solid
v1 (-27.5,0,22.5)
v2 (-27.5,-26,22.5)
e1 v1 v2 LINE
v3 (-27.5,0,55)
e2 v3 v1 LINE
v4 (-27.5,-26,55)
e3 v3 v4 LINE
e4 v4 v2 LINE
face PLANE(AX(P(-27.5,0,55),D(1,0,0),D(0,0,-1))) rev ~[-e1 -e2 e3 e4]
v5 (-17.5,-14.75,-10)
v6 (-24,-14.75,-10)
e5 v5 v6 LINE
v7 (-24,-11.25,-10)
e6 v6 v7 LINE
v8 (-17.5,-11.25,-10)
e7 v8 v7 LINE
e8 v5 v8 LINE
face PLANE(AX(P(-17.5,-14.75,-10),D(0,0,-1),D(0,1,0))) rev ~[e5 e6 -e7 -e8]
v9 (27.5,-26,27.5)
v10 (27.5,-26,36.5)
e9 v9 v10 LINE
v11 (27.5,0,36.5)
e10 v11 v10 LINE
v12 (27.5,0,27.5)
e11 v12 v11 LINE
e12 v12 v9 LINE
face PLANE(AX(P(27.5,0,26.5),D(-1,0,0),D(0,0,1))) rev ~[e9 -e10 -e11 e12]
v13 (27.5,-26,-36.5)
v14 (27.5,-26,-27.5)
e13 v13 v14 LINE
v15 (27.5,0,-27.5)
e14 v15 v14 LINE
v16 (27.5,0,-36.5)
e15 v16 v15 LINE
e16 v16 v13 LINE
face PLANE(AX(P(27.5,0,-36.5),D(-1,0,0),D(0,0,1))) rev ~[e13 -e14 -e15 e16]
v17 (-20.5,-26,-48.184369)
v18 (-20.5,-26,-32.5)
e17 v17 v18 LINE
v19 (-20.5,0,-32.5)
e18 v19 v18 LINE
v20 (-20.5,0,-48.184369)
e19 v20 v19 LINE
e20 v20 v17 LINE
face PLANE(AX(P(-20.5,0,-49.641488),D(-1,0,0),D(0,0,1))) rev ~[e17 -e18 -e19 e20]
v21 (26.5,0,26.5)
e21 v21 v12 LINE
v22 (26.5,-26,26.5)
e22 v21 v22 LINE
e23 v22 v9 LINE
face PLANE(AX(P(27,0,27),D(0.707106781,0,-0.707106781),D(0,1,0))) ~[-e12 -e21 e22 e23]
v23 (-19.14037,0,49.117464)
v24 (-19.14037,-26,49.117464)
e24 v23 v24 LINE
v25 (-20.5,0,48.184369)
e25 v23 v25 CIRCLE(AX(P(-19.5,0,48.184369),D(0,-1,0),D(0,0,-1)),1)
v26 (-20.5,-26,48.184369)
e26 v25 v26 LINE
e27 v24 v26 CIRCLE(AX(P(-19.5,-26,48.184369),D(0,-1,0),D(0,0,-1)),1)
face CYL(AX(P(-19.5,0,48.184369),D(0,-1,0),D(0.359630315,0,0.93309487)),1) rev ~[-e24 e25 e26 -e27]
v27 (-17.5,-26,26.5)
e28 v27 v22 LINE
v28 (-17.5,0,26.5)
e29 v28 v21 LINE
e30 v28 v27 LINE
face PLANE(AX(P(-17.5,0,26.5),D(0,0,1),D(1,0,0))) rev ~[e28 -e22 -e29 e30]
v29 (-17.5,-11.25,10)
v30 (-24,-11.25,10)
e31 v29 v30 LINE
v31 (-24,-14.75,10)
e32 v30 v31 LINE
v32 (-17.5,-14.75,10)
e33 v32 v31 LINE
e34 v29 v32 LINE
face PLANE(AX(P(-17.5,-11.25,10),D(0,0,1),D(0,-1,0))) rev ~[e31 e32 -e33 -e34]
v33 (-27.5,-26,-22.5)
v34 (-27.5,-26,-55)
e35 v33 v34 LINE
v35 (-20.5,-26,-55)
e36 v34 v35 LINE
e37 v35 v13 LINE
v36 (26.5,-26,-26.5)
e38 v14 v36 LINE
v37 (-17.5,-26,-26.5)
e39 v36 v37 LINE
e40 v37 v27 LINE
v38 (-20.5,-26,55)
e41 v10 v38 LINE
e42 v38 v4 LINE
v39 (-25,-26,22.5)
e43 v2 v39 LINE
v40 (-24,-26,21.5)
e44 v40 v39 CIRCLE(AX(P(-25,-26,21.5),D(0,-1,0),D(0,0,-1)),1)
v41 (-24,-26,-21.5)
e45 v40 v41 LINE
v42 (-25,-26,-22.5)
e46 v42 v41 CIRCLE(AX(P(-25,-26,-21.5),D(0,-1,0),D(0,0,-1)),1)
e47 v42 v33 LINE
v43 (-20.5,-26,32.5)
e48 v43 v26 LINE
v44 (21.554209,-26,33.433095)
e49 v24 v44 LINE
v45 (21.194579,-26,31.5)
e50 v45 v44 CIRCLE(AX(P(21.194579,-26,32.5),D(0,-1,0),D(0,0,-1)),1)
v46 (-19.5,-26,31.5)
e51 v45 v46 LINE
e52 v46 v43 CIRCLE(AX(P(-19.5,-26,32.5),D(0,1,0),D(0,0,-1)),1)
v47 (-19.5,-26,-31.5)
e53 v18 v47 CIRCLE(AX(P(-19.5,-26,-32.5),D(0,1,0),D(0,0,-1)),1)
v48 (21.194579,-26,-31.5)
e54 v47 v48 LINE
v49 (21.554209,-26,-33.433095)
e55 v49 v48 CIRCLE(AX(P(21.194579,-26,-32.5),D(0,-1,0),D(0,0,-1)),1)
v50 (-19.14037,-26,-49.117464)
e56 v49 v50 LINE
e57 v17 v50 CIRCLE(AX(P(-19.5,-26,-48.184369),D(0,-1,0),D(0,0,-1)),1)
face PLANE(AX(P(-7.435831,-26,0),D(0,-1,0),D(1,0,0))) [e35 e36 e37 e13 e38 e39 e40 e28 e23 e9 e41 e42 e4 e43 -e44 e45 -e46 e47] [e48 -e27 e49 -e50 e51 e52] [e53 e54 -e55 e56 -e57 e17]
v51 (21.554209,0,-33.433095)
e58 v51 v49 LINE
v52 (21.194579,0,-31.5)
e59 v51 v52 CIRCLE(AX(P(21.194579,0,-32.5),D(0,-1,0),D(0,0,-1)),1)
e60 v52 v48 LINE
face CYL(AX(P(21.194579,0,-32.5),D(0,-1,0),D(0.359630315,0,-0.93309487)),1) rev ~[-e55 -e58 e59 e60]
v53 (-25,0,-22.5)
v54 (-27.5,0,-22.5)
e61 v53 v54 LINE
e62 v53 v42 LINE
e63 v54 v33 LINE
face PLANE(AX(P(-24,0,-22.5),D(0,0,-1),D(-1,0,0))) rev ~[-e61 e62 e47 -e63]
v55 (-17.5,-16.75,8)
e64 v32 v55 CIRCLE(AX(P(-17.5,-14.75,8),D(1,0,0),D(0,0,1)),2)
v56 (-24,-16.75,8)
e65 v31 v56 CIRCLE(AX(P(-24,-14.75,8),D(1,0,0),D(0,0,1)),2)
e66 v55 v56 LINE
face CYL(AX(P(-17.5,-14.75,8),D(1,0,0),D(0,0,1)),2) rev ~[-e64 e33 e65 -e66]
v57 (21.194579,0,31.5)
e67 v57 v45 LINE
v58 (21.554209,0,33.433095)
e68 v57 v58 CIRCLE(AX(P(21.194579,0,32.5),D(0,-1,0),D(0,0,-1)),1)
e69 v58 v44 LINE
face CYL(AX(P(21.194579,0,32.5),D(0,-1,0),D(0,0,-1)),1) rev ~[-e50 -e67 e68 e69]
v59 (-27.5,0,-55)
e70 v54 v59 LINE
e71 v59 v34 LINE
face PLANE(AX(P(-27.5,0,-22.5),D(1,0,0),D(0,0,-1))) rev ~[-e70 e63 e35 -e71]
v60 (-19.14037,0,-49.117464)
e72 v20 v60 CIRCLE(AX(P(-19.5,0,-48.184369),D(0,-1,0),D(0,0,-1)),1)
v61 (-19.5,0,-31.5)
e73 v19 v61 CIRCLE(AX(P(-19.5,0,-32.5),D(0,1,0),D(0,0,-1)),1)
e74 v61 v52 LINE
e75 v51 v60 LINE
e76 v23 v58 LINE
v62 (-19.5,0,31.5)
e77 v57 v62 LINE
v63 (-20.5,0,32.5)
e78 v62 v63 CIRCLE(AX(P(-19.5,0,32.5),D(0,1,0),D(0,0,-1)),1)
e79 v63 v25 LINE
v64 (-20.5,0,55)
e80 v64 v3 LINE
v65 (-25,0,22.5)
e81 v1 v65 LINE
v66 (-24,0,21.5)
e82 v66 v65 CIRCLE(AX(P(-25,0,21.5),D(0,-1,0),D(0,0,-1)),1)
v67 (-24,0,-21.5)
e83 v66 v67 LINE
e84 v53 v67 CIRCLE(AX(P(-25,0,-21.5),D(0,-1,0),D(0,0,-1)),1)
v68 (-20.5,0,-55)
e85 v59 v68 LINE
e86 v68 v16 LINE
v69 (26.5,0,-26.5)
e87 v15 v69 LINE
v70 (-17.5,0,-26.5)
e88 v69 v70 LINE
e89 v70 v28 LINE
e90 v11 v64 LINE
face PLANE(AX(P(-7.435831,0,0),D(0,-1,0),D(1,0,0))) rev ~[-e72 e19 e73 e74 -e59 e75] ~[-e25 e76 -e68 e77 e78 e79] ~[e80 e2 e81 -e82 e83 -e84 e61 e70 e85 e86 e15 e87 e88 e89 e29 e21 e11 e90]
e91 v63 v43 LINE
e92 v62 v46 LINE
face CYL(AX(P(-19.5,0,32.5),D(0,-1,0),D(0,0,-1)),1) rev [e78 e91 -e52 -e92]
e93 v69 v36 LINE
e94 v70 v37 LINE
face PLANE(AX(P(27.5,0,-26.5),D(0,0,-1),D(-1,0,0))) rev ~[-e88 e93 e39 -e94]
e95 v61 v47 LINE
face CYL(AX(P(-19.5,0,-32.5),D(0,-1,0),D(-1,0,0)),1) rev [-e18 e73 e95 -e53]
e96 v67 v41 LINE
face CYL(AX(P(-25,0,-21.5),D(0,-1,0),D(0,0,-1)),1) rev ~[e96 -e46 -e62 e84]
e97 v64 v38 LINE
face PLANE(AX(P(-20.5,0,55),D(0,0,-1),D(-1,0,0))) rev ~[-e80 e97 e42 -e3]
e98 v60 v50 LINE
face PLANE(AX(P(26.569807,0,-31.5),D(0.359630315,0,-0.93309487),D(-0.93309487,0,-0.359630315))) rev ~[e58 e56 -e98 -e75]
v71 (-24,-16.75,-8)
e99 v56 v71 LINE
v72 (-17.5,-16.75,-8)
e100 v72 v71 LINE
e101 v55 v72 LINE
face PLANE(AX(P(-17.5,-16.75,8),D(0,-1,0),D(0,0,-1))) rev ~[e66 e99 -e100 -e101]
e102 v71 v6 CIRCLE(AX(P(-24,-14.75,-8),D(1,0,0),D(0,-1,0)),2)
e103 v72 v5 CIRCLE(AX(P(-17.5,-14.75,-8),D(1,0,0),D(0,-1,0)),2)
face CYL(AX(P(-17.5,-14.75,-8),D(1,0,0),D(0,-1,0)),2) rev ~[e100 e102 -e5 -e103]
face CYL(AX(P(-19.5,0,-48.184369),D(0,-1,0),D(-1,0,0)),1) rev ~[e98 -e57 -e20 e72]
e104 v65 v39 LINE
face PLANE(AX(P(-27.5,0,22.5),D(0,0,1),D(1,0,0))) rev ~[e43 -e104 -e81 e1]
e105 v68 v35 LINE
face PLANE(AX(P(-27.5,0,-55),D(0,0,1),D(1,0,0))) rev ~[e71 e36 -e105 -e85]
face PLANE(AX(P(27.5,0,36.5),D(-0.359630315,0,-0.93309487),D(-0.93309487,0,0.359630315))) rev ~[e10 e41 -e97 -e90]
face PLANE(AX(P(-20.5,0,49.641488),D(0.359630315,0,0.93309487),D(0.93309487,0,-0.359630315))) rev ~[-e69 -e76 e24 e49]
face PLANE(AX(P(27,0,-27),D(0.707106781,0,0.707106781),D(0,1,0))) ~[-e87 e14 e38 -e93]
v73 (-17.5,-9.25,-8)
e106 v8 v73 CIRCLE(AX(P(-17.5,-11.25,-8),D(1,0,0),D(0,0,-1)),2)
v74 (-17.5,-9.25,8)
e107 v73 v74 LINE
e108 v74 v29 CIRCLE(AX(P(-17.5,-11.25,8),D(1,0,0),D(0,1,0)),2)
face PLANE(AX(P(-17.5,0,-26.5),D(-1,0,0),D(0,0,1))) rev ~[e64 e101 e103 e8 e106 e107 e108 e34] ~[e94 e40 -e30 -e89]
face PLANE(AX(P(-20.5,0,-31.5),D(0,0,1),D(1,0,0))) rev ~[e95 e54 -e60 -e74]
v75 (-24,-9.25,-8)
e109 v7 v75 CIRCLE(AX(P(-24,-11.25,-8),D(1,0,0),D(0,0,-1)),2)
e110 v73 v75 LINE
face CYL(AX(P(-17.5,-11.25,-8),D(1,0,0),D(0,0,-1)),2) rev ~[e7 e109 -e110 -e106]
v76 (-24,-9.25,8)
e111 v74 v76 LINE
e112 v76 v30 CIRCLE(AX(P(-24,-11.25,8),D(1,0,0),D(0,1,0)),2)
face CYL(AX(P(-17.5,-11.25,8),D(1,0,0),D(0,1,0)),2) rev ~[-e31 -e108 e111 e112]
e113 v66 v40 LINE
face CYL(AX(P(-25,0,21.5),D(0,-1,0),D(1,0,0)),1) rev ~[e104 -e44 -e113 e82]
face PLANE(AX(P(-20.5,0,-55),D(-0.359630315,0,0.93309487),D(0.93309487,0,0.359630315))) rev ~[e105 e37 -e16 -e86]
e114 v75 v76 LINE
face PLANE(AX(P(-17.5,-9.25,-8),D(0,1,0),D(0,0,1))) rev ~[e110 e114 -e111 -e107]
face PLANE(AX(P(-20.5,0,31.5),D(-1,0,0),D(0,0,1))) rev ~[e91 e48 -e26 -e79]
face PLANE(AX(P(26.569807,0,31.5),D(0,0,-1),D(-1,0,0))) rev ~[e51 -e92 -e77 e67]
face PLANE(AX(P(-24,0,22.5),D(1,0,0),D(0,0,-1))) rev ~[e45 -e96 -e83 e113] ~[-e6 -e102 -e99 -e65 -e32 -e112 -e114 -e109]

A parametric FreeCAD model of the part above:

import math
import FreeCAD as App
import Part
import Sketcher
from FreeCAD import Vector
Q = App.Units.Quantity


def edges_at(feature, points):
    """Names of the edges that pass closest to the given points."""
    edges = feature.Shape.Edges
    near = lambda p: min(range(len(edges)), key=lambda i: edges[i].distToShape(Part.Vertex(*p))[0])
    return sorted({f"Edge{near(p) + 1}" for p in points})


def add_polygon(sketch, points):
    """Adds a closed chain of lines whose ends are joined by coincident constraints."""
    first, n = sketch.GeometryCount, len(points)
    for a, b in zip(points, points[1:] + points[:1]):
        sketch.addGeometry(Part.LineSegment(App.Vector(*a, 0), App.Vector(*b, 0)), False)
    for i in range(n):
        sketch.addConstraint(Sketcher.Constraint("Coincident", first + i, 2, first + (i + 1) % n, 1))

doc = App.newDocument("Part")
body = doc.addObject("PartDesign::Body", "Body")

# Sketch on XZ plane
sketch1 = body.newObject("Sketcher::SketchObject", "Sketch")
sketch1.AttachmentSupport = (doc.getObject("XZ_Plane"), [""])
sketch1.MapMode = "FlatFace"
add_polygon(sketch1, [(-27.5, -55), (-20.5, -55), (27.5, -36.5), (27.5, -26.5), (-17.5, -26.5), (-17.5, 26.5), (27.5, 26.5), (27.5, 36.5), (-20.5, 55), (-27.5, 55), (-27.5, 22.5), (-24, 22.5), (-24, -22.5), (-27.5, -22.5)])  # lines 0-13
add_polygon(sketch1, [(-20.5, -49.6), (-20.5, -31.5), (26.6, -31.5)])  # lines 14-16
add_polygon(sketch1, [(26.6, 31.5), (-20.5, 31.5), (-20.5, 49.6)])  # lines 17-19
sketch1.addConstraint([
    Sketcher.Constraint("Horizontal", 0),
    Sketcher.Constraint("Vertical", 2),
    Sketcher.Constraint("Horizontal", 3),
    Sketcher.Constraint("Vertical", 4),
    Sketcher.Constraint("Horizontal", 5),
    Sketcher.Constraint("Vertical", 6),
    Sketcher.Constraint("Horizontal", 8),
    Sketcher.Constraint("Vertical", 9),
    Sketcher.Constraint("Horizontal", 10),
    Sketcher.Constraint("Vertical", 11),
    Sketcher.Constraint("Horizontal", 12),
    Sketcher.Constraint("Vertical", 13),
    Sketcher.Constraint("Vertical", 14),
    Sketcher.Constraint("Horizontal", 15),
    Sketcher.Constraint("Horizontal", 17),
    Sketcher.Constraint("Vertical", 18),
    Sketcher.Constraint("Symmetric", 2, 2, 5, 2, -1),
    Sketcher.Constraint("Symmetric", 0, 2, 7, 2, -1),
    Sketcher.Constraint("Symmetric", 9, 2, 12, 2, -1),
    Sketcher.Constraint("Symmetric", 14, 2, 17, 2, -1),
    Sketcher.Constraint("Parallel", 1, 16),
    Sketcher.Constraint("Parallel", 7, 19),
    Sketcher.Constraint("Vertical", 7, 2, 14, 2),
    Sketcher.Constraint("Vertical", 15, 2, 19, 2),
    Sketcher.Constraint("Equal", 2, 6),
    Sketcher.Constraint("Equal", 5, 11),
    Sketcher.Constraint("DistanceX", 0, 1, 0, 2, Q("7 mm")),
    Sketcher.Constraint("DistanceX", 3, 2, 3, 1, Q("45 mm")),
    Sketcher.Constraint("DistanceY", 2, 1, 2, 2, Q("10 mm")),
    Sketcher.Constraint("DistanceY", 4, 1, 4, 2, Q("53 mm")),
    Sketcher.Constraint("DistanceX", 10, 1, 10, 2, Q("3.5 mm")),
    Sketcher.Constraint("DistanceY", 9, 2, 9, 1, Q("32.5 mm")),
    Sketcher.Constraint("DistanceX", 10, 2, -1, 1, Q("24 mm")),
    Sketcher.Constraint("DistanceX", 0, 2, 1, 2, Q("48 mm")),
    Sketcher.Constraint("DistanceY", 14, 2, 3, 2, Q("5 mm")),
    Sketcher.Constraint("DistanceY", 14, 1, 14, 2, Q("18.141488 mm")),
])
pad1 = body.newObject("PartDesign::Pad", "Pad")
pad1.Profile = sketch1
pad1.Length = 26
doc.recompute()

fillet = body.newObject("PartDesign::Fillet", "Fillet")
fillet.Base = (pad1, edges_at(pad1, [
    (-20.5, -13, 49.641),
    (-20.5, -13, 31.5),
    (26.57, -13, 31.5),
    (26.57, -13, -31.5),
    (-20.5, -13, -31.5),
    (-20.5, -13, -49.641),
    (-24, -13, -22.5),
    (-24, -13, 22.5),
]))
fillet.Radius = 1
doc.recompute()

chamfer = body.newObject("PartDesign::Chamfer", "Chamfer")
chamfer.Base = (fillet, edges_at(fillet, [(27.5, -13, -26.5), (27.5, -13, 26.5)]))
chamfer.Size = 1

# Sketch on YZ plane
sketch2 = body.newObject("Sketcher::SketchObject", "Sketch001")
sketch2.AttachmentSupport = (doc.getObject("YZ_Plane"), [""])
sketch2.MapMode = "FlatFace"
sketch2.AttachmentOffset = App.Placement(Vector(0, 0, -17.5), App.Rotation())
sketch2.addGeometry([
    Part.ArcOfCircle(Part.Circle(Vector(-11.2, 8, 0), Vector(0, 0, 1), 2), math.radians(0), math.radians(90)),  # 0
    Part.LineSegment(Vector(-11.2, 10, 0), Vector(-14.8, 10, 0)),  # 1
    Part.ArcOfCircle(Part.Circle(Vector(-14.8, 8, 0), Vector(0, 0, 1), 2), math.radians(90), math.radians(180)),  # 2
    Part.LineSegment(Vector(-16.8, 8, 0), Vector(-16.8, -8, 0)),  # 3
    Part.ArcOfCircle(Part.Circle(Vector(-14.8, -8, 0), Vector(0, 0, 1), 2), math.radians(180), math.radians(270)),  # 4
    Part.LineSegment(Vector(-14.8, -10, 0), Vector(-11.2, -10, 0)),  # 5
    Part.ArcOfCircle(Part.Circle(Vector(-11.2, -8, 0), Vector(0, 0, 1), 2), math.radians(-90), math.radians(0)),  # 6
    Part.LineSegment(Vector(-9.2, -8, 0), Vector(-9.2, 8, 0)),  # 7
], False)
sketch2.addConstraint([
    Sketcher.Constraint("Tangent", 0, 2, 1, 1),
    Sketcher.Constraint("Tangent", 1, 2, 2, 1),
    Sketcher.Constraint("Tangent", 2, 2, 3, 1),
    Sketcher.Constraint("Tangent", 3, 2, 4, 1),
    Sketcher.Constraint("Tangent", 4, 2, 5, 1),
    Sketcher.Constraint("Tangent", 5, 2, 6, 1),
    Sketcher.Constraint("Tangent", 6, 2, 7, 1),
    Sketcher.Constraint("Tangent", 7, 2, 0, 1),
    Sketcher.Constraint("Horizontal", 1),
    Sketcher.Constraint("Vertical", 3),
    Sketcher.Constraint("Horizontal", 5),
    Sketcher.Constraint("Vertical", 7),
    Sketcher.Constraint("Equal", 0, 2),
    Sketcher.Constraint("Equal", 2, 4),
    Sketcher.Constraint("Equal", 4, 6),
    Sketcher.Constraint("Radius", 0, Q("2 mm")),
    Sketcher.Constraint("DistanceY", 3, 2, 3, 1, Q("16 mm")),
    Sketcher.Constraint("DistanceX", 1, 2, 1, 1, Q("3.5 mm")),
    Sketcher.Constraint("DistanceY", -1, 1, 0, 3, Q("8 mm")),
    Sketcher.Constraint("DistanceX", 0, 3, -1, 1, Q("11.25 mm")),
])
pocket1 = body.newObject("PartDesign::Pocket", "Pocket")
pocket1.Profile = sketch2
pocket1.Type = "ThroughAll"

doc.recompute()
